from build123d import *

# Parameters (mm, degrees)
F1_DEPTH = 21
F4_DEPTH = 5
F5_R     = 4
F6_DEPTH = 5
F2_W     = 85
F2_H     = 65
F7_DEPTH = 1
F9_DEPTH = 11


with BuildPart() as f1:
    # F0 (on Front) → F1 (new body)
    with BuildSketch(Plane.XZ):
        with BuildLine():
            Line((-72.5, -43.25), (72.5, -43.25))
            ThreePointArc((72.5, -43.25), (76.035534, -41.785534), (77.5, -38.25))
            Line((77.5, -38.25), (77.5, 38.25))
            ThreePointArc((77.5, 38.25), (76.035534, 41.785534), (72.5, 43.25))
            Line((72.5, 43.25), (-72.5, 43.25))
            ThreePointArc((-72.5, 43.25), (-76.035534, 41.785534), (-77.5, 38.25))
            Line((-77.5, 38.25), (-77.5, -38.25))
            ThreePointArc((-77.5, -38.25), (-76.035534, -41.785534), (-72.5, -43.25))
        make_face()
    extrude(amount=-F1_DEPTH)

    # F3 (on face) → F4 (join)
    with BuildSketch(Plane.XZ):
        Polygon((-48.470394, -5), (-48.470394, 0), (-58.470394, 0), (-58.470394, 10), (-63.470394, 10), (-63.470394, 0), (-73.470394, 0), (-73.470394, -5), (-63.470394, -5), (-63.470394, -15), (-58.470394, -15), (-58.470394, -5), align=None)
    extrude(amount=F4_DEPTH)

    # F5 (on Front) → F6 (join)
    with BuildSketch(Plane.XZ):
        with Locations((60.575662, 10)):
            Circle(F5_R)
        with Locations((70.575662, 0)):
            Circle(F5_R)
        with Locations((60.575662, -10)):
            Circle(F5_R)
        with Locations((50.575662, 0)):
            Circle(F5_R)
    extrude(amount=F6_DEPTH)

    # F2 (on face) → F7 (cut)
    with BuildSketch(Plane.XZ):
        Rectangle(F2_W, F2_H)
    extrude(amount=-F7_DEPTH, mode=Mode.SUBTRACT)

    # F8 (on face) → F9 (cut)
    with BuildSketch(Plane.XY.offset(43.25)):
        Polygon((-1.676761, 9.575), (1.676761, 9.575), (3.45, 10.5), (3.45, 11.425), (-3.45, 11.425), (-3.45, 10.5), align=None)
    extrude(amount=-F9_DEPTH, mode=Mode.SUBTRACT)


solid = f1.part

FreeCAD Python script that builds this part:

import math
import FreeCAD as App
import Part
import Sketcher
Q = App.Units.Quantity

doc = App.newDocument("Part")
body = doc.addObject("PartDesign::Body", "Body")

# Sketch on XZ plane
sketch1 = doc.addObject("Sketcher::SketchObject", "Sketch")
body.addObject(sketch1)
sketch1.AttachmentSupport = (doc.XZ_Plane, [""])
sketch1.MapMode = "FlatFace"
sketch1.addGeometry(Part.LineSegment(App.Vector(-72.5, -43.2, 0), App.Vector(72.5, -43.2, 0)), False)
sketch1.addGeometry(Part.ArcOfCircle(Part.Circle(App.Vector(72.5, -38.3, 0), App.Vector(0, 0, 1), 5), math.radians(-90), math.radians(0)), False)
sketch1.addGeometry(Part.LineSegment(App.Vector(77.5, -38.2, 0), App.Vector(77.5, 38.2, 0)), False)
sketch1.addGeometry(Part.ArcOfCircle(Part.Circle(App.Vector(72.5, 38.3, 0), App.Vector(0, 0, 1), 5), math.radians(0), math.radians(90)), False)
sketch1.addGeometry(Part.LineSegment(App.Vector(72.5, 43.2, 0), App.Vector(-72.5, 43.2, 0)), False)
sketch1.addGeometry(Part.ArcOfCircle(Part.Circle(App.Vector(-72.5, 38.3, 0), App.Vector(0, 0, 1), 5), math.radians(90), math.radians(180)), False)
sketch1.addGeometry(Part.LineSegment(App.Vector(-77.5, 38.2, 0), App.Vector(-77.5, -38.2, 0)), False)
sketch1.addGeometry(Part.ArcOfCircle(Part.Circle(App.Vector(-72.5, -38.3, 0), App.Vector(0, 0, 1), 5), math.radians(180), math.radians(270)), False)
sketch1.addConstraint(Sketcher.Constraint("Tangent", 0, 2, 1, 1))
sketch1.addConstraint(Sketcher.Constraint("Tangent", 1, 2, 2, 1))
sketch1.addConstraint(Sketcher.Constraint("Tangent", 2, 2, 3, 1))
sketch1.addConstraint(Sketcher.Constraint("Tangent", 3, 2, 4, 1))
sketch1.addConstraint(Sketcher.Constraint("Tangent", 4, 2, 5, 1))
sketch1.addConstraint(Sketcher.Constraint("Tangent", 5, 2, 6, 1))
sketch1.addConstraint(Sketcher.Constraint("Tangent", 6, 2, 7, 1))
sketch1.addConstraint(Sketcher.Constraint("Tangent", 7, 2, 0, 1))
sketch1.addConstraint(Sketcher.Constraint("Horizontal", 0))
sketch1.addConstraint(Sketcher.Constraint("Vertical", 2))
sketch1.addConstraint(Sketcher.Constraint("Horizontal", 4))
sketch1.addConstraint(Sketcher.Constraint("Vertical", 6))
sketch1.addConstraint(Sketcher.Constraint("Equal", 1, 3))
sketch1.addConstraint(Sketcher.Constraint("Equal", 3, 5))
sketch1.addConstraint(Sketcher.Constraint("Equal", 5, 7))
sketch1.addConstraint(Sketcher.Constraint("Symmetric", 1, 3, 5, 3, -1, 1))
sketch1.addConstraint(Sketcher.Constraint("Radius", 1, Q("5 mm")))
sketch1.addConstraint(Sketcher.Constraint("DistanceX", 0, 1, 0, 2, Q("145 mm")))
sketch1.addConstraint(Sketcher.Constraint("DistanceY", 2, 1, 2, 2, Q("76.5 mm")))
pad1 = doc.addObject("PartDesign::Pad", "Pad")
body.addObject(pad1)
pad1.Profile = sketch1
pad1.Length = 21
pad1.Reversed = True

# Sketch on XZ plane
sketch2 = doc.addObject("Sketcher::SketchObject", "Sketch001")
body.addObject(sketch2)
sketch2.AttachmentSupport = (doc.XZ_Plane, [""])
sketch2.MapMode = "FlatFace"
sketch2.addGeometry(Part.LineSegment(App.Vector(-48, -5, 0), App.Vector(-48, 0, 0)), False)
sketch2.addGeometry(Part.LineSegment(App.Vector(-48, 0, 0), App.Vector(-58, 0, 0)), False)
sketch2.addGeometry(Part.LineSegment(App.Vector(-58, 0, 0), App.Vector(-58, 10, 0)), False)
sketch2.addGeometry(Part.LineSegment(App.Vector(-58, 10, 0), App.Vector(-63, 10, 0)), False)
sketch2.addGeometry(Part.LineSegment(App.Vector(-63, 10, 0), App.Vector(-63, 0, 0)), False)
sketch2.addGeometry(Part.LineSegment(App.Vector(-63, 0, 0), App.Vector(-73, 0, 0)), False)
sketch2.addGeometry(Part.LineSegment(App.Vector(-73, 0, 0), App.Vector(-73, -5, 0)), False)
sketch2.addGeometry(Part.LineSegment(App.Vector(-73, -5, 0), App.Vector(-63, -5, 0)), False)
sketch2.addGeometry(Part.LineSegment(App.Vector(-63, -5, 0), App.Vector(-63, -15, 0)), False)
sketch2.addGeometry(Part.LineSegment(App.Vector(-63, -15, 0), App.Vector(-58, -15, 0)), False)
sketch2.addGeometry(Part.LineSegment(App.Vector(-58, -15, 0), App.Vector(-58, -5, 0)), False)
sketch2.addGeometry(Part.LineSegment(App.Vector(-58, -5, 0), App.Vector(-48, -5, 0)), False)
sketch2.addConstraint(Sketcher.Constraint("Coincident", 0, 2, 1, 1))
sketch2.addConstraint(Sketcher.Constraint("Coincident", 1, 2, 2, 1))
sketch2.addConstraint(Sketcher.Constraint("Coincident", 2, 2, 3, 1))
sketch2.addConstraint(Sketcher.Constraint("Coincident", 3, 2, 4, 1))
sketch2.addConstraint(Sketcher.Constraint("Coincident", 4, 2, 5, 1))
sketch2.addConstraint(Sketcher.Constraint("Coincident", 5, 2, 6, 1))
sketch2.addConstraint(Sketcher.Constraint("Coincident", 6, 2, 7, 1))
sketch2.addConstraint(Sketcher.Constraint("Coincident", 7, 2, 8, 1))
sketch2.addConstraint(Sketcher.Constraint("Coincident", 8, 2, 9, 1))
sketch2.addConstraint(Sketcher.Constraint("Coincident", 9, 2, 10, 1))
sketch2.addConstraint(Sketcher.Constraint("Coincident", 10, 2, 11, 1))
sketch2.addConstraint(Sketcher.Constraint("Coincident", 11, 2, 0, 1))
sketch2.addConstraint(Sketcher.Constraint("Vertical", 0))
sketch2.addConstraint(Sketcher.Constraint("Horizontal", 1))
sketch2.addConstraint(Sketcher.Constraint("Vertical", 2))
sketch2.addConstraint(Sketcher.Constraint("Horizontal", 3))
sketch2.addConstraint(Sketcher.Constraint("Vertical", 4))
sketch2.addConstraint(Sketcher.Constraint("Horizontal", 5))
sketch2.addConstraint(Sketcher.Constraint("Vertical", 6))
sketch2.addConstraint(Sketcher.Constraint("Horizontal", 7))
sketch2.addConstraint(Sketcher.Constraint("Vertical", 8))
sketch2.addConstraint(Sketcher.Constraint("Horizontal", 9))
sketch2.addConstraint(Sketcher.Constraint("Vertical", 10))
sketch2.addConstraint(Sketcher.Constraint("Horizontal", 11))
sketch2.addConstraint(Sketcher.Constraint("PointOnObject", 0, 2, -1))
sketch2.addConstraint(Sketcher.Constraint("PointOnObject", 4, 2, -1))
sketch2.addConstraint(Sketcher.Constraint("Horizontal", 7, 2, 10, 2))
sketch2.addConstraint(Sketcher.Constraint("Vertical", 4, 2, 7, 2))
sketch2.addConstraint(Sketcher.Constraint("Vertical", 2, 2, 9, 2))
sketch2.addConstraint(Sketcher.Constraint("Equal", 1, 5))
sketch2.addConstraint(Sketcher.Constraint("Equal", 9, 0))
sketch2.addConstraint(Sketcher.Constraint("Equal", 11, 2))
sketch2.addConstraint(Sketcher.Constraint("Equal", 4, 8))
sketch2.addConstraint(Sketcher.Constraint("DistanceX", 1, 2, 1, 1, Q("10 mm")))
sketch2.addConstraint(Sketcher.Constraint("DistanceX", 3, 2, 3, 1, Q("5 mm")))
sketch2.addConstraint(Sketcher.Constraint("DistanceX", 0, 2, -1, 1, Q("48.470394 mm")))
pad2 = doc.addObject("PartDesign::Pad", "Pad001")
body.addObject(pad2)
pad2.Profile = sketch2
pad2.Length = 5

# Sketch on XZ plane
sketch3 = doc.addObject("Sketcher::SketchObject", "Sketch002")
body.addObject(sketch3)
sketch3.AttachmentSupport = (doc.XZ_Plane, [""])
sketch3.MapMode = "FlatFace"
sketch3.addGeometry(Part.Circle(App.Vector(60.6, 10, 0), App.Vector(0, 0, 1), 4), False)
sketch3.addGeometry(Part.Circle(App.Vector(70.6, 0, 0), App.Vector(0, 0, 1), 4), False)
sketch3.addGeometry(Part.Circle(App.Vector(60.6, -10, 0), App.Vector(0, 0, 1), 4), False)
sketch3.addGeometry(Part.Circle(App.Vector(50.6, 0, 0), App.Vector(0, 0, 1), 4), False)
sketch3.addConstraint(Sketcher.Constraint("Equal", 0, 1))
sketch3.addConstraint(Sketcher.Constraint("Equal", 1, 2))
sketch3.addConstraint(Sketcher.Constraint("Equal", 2, 3))
sketch3.addConstraint(Sketcher.Constraint("Symmetric", 0, 3, 2, 3, -1))
sketch3.addConstraint(Sketcher.Constraint("PointOnObject", 1, 3, -1))
sketch3.addConstraint(Sketcher.Constraint("PointOnObject", 3, 3, -1))
sketch3.addConstraint(Sketcher.Constraint("Diameter", 0, Q("8 mm")))
sketch3.addConstraint(Sketcher.Constraint("DistanceY", -1, 1, 0, 3, Q("10 mm")))
sketch3.addConstraint(Sketcher.Constraint("DistanceX", 0, 3, 1, 3, Q("10 mm")))
sketch3.addConstraint(Sketcher.Constraint("DistanceX", 3, 3, 0, 3, Q("10 mm")))
sketch3.addConstraint(Sketcher.Constraint("DistanceX", -1, 1, 1, 3, Q("70.575662 mm")))
pad3 = doc.addObject("PartDesign::Pad", "Pad002")
body.addObject(pad3)
pad3.Profile = sketch3
pad3.Length = 5

# Sketch on XZ plane
sketch4 = doc.addObject("Sketcher::SketchObject", "Sketch003")
body.addObject(sketch4)
sketch4.AttachmentSupport = (doc.XZ_Plane, [""])
sketch4.MapMode = "FlatFace"
sketch4.addGeometry(Part.LineSegment(App.Vector(-42, 32, 0), App.Vector(-42, -32, 0)), False)
sketch4.addGeometry(Part.LineSegment(App.Vector(-42, -32, 0), App.Vector(42, -32, 0)), False)
sketch4.addGeometry(Part.LineSegment(App.Vector(42, -32, 0), App.Vector(42, 32, 0)), False)
sketch4.addGeometry(Part.LineSegment(App.Vector(42, 32, 0), App.Vector(-42, 32, 0)), False)
sketch4.addConstraint(Sketcher.Constraint("Coincident", 0, 2, 1, 1))
sketch4.addConstraint(Sketcher.Constraint("Coincident", 1, 2, 2, 1))
sketch4.addConstraint(Sketcher.Constraint("Coincident", 2, 2, 3, 1))
sketch4.addConstraint(Sketcher.Constraint("Coincident", 3, 2, 0, 1))
sketch4.addConstraint(Sketcher.Constraint("Vertical", 0))
sketch4.addConstraint(Sketcher.Constraint("Horizontal", 1))
sketch4.addConstraint(Sketcher.Constraint("Vertical", 2))
sketch4.addConstraint(Sketcher.Constraint("Horizontal", 3))
sketch4.addConstraint(Sketcher.Constraint("Symmetric", 0, 2, 2, 2, -1, 1))
sketch4.addConstraint(Sketcher.Constraint("DistanceX", 1, 1, 1, 2, Q("85 mm")))
sketch4.addConstraint(Sketcher.Constraint("DistanceY", 0, 2, 0, 1, Q("65 mm")))
pocket1 = doc.addObject("PartDesign::Pocket", "Pocket")
body.addObject(pocket1)
pocket1.Profile = sketch4
pocket1.Length = 1

# Sketch on XY plane
sketch5 = doc.addObject("Sketcher::SketchObject", "Sketch004")
body.addObject(sketch5)
sketch5.AttachmentSupport = (doc.XY_Plane, [""])
sketch5.MapMode = "FlatFace"
sketch5.AttachmentOffset = App.Placement(App.Vector(0, 0, 43.25), App.Rotation())
sketch5.addGeometry(Part.LineSegment(App.Vector(-1.7, 9.6, 0), App.Vector(1.7, 9.6, 0)), False)
sketch5.addGeometry(Part.LineSegment(App.Vector(1.7, 9.6, 0), App.Vector(3.5, 10.5, 0)), False)
sketch5.addGeometry(Part.LineSegment(App.Vector(3.5, 10.5, 0), App.Vector(3.5, 11.4, 0)), False)
sketch5.addGeometry(Part.LineSegment(App.Vector(3.5, 11.4, 0), App.Vector(-3.5, 11.4, 0)), False)
sketch5.addGeometry(Part.LineSegment(App.Vector(-3.5, 11.4, 0), App.Vector(-3.5, 10.5, 0)), False)
sketch5.addGeometry(Part.LineSegment(App.Vector(-3.5, 10.5, 0), App.Vector(-1.7, 9.6, 0)), False)
sketch5.addConstraint(Sketcher.Constraint("Coincident", 0, 2, 1, 1))
sketch5.addConstraint(Sketcher.Constraint("Coincident", 1, 2, 2, 1))
sketch5.addConstraint(Sketcher.Constraint("Coincident", 2, 2, 3, 1))
sketch5.addConstraint(Sketcher.Constraint("Coincident", 3, 2, 4, 1))
sketch5.addConstraint(Sketcher.Constraint("Coincident", 4, 2, 5, 1))
sketch5.addConstraint(Sketcher.Constraint("Coincident", 5, 2, 0, 1))
sketch5.addConstraint(Sketcher.Constraint("Horizontal", 0))
sketch5.addConstraint(Sketcher.Constraint("Vertical", 2))
sketch5.addConstraint(Sketcher.Constraint("Horizontal", 3))
sketch5.addConstraint(Sketcher.Constraint("Vertical", 4))
sketch5.addConstraint(Sketcher.Constraint("Symmetric", 1, 2, 4, 2, -2))
sketch5.addConstraint(Sketcher.Constraint("Equal", 1, 5))
sketch5.addConstraint(Sketcher.Constraint("Distance", 1, Q("2 mm")))
sketch5.addConstraint(Sketcher.Constraint("DistanceX", 3, 2, 3, 1, Q("6.9 mm")))
sketch5.addConstraint(Sketcher.Constraint("DistanceY", -1, 1, 1, 2, Q("10.5 mm")))
sketch5.addConstraint(Sketcher.Constraint("DistanceY", 2, 1, 2, 2, Q("0.925 mm")))
sketch5.addConstraint(Sketcher.Constraint("DistanceY", 0, 2, 2, 2, Q("1.85 mm")))
pocket2 = doc.addObject("PartDesign::Pocket", "Pocket001")
body.addObject(pocket2)
pocket2.Profile = sketch5
pocket2.Length = 11

doc.recompute()
